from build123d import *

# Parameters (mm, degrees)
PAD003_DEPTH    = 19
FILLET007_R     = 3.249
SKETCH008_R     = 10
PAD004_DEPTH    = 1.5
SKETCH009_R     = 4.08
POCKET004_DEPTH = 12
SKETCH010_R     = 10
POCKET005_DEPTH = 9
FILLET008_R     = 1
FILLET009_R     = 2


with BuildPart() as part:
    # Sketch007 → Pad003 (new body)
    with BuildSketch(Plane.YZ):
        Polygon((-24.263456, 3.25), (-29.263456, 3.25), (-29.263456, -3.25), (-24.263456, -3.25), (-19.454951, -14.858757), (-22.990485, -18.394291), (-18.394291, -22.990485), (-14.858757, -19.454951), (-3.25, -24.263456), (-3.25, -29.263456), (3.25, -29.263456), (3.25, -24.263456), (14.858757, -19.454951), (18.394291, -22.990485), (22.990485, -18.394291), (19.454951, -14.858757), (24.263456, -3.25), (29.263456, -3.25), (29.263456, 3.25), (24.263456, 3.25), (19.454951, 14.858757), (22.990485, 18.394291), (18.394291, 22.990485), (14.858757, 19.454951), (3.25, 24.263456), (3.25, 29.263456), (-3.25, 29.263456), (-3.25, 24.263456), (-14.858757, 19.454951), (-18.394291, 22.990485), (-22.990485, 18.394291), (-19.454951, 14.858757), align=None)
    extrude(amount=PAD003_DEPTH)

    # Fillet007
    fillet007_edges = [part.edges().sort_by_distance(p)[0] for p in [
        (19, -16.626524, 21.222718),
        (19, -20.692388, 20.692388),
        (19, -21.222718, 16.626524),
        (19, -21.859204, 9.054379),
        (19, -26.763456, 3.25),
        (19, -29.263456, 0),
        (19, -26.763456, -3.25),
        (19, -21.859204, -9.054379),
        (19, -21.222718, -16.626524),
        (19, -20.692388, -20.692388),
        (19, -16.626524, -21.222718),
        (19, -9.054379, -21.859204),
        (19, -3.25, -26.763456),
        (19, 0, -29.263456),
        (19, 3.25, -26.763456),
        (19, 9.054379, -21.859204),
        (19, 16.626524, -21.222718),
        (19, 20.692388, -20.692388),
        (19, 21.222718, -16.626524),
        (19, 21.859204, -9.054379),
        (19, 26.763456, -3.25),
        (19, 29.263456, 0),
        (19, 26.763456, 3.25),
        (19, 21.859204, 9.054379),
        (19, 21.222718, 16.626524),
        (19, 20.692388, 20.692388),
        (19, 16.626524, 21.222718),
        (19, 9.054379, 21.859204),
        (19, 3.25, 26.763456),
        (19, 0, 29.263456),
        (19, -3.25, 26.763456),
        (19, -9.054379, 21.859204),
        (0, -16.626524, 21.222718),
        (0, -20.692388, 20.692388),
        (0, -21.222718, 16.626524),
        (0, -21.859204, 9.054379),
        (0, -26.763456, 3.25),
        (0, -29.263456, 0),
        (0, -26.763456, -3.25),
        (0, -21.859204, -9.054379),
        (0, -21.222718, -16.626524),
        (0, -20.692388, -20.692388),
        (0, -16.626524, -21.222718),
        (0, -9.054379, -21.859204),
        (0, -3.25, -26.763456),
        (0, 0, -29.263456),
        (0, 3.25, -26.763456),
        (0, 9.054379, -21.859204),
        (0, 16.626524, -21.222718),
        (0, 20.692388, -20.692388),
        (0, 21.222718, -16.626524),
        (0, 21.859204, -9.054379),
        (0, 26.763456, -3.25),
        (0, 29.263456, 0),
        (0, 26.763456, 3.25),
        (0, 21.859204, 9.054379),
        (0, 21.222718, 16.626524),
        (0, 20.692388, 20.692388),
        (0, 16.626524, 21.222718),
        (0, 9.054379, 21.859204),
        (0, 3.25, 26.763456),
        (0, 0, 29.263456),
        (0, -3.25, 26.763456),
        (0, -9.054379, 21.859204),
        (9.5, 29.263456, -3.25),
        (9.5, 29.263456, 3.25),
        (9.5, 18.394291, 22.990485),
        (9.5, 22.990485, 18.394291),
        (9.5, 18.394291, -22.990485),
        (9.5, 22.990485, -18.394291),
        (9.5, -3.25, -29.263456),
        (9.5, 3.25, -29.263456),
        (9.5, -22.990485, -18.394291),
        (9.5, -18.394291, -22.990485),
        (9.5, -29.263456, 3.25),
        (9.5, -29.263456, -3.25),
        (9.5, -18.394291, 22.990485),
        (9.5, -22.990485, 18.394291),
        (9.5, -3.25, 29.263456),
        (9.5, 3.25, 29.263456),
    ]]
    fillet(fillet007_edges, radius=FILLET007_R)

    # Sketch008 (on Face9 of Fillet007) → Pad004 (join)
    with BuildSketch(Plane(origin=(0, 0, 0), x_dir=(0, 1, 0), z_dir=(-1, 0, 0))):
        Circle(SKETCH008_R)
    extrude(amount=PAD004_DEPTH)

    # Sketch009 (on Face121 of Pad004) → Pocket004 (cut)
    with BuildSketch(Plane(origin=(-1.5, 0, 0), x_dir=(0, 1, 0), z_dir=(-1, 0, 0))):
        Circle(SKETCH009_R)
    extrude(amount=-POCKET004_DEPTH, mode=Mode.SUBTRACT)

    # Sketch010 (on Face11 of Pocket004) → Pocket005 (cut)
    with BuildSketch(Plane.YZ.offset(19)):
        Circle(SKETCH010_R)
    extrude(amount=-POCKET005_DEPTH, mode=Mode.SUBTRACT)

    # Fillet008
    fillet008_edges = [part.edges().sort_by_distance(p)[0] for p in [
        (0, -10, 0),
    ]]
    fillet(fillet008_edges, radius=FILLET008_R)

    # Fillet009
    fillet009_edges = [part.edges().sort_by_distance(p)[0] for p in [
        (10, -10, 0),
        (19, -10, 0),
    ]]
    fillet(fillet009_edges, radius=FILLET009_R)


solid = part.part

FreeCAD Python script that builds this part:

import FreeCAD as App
import Part
import Sketcher

V = App.Vector
Q = App.Units.Quantity


def edges_at(feature, points):
    """Names of the edges that pass closest to the given points."""
    edges = feature.Shape.Edges
    near = lambda p: min(range(len(edges)), key=lambda i: edges[i].distToShape(Part.Vertex(*p))[0])
    return sorted({f"Edge{near(p) + 1}" for p in points})

doc = App.newDocument("Part")
params = doc.addObject("Spreadsheet::Sheet", "Params")
for row, (alias, value) in enumerate([
    ("sketch1_width", "5 mm"),
    ("sketch1_length", "5 mm"),
    ("sketch1_width2", "6.5 mm"),
    ("sketch1_length2", "6.5 mm"),
    ("pad1_length", "19 mm"),
    ("fillet_radius", "3.249 mm"),
    ("sketch2_diameter", "20 mm"),
    ("pad2_length", "1.5 mm"),
    ("sketch3_diameter", "8.16 mm"),
    ("pocket1_length", "12 mm"),
    ("sketch4_diameter", "20 mm"),
    ("pocket2_length", "9 mm"),
    ("fillet2_radius", "1 mm"),
    ("fillet3_radius", "2 mm"),
], start=1):
    params.set(f"A{row}", alias)
    params.set(f"B{row}", "=" + value)
    params.setAlias(f"B{row}", alias)

body = doc.addObject("PartDesign::Body", "Body")

sketch1 = body.newObject("Sketcher::SketchObject", "Sketch")
sketch1.AttachmentSupport = (doc.getObject("YZ_Plane"), [""])
sketch1.MapMode = "FlatFace"
sketch1.addGeometry([
    Part.LineSegment(V(-24, 3, 0), V(-29, 3, 0)),
    Part.LineSegment(V(-29, 3, 0), V(-29, -3, 0)),
    Part.LineSegment(V(-29, -3, 0), V(-24, -3, 0)),
    Part.LineSegment(V(-24, -3, 0), V(-19, -15, 0)),
    Part.LineSegment(V(-19, -15, 0), V(-23, -18, 0)),
    Part.LineSegment(V(-23, -18, 0), V(-18, -23, 0)),
    Part.LineSegment(V(-18, -23, 0), V(-15, -19, 0)),
    Part.LineSegment(V(-15, -19, 0), V(-3, -24, 0)),
    Part.LineSegment(V(-3, -24, 0), V(-3, -29, 0)),
    Part.LineSegment(V(-3, -29, 0), V(3, -29, 0)),
    Part.LineSegment(V(3, -29, 0), V(3, -24, 0)),
    Part.LineSegment(V(3, -24, 0), V(15, -19, 0)),
    Part.LineSegment(V(15, -19, 0), V(18, -23, 0)),
    Part.LineSegment(V(18, -23, 0), V(23, -18, 0)),
    Part.LineSegment(V(23, -18, 0), V(19, -15, 0)),
    Part.LineSegment(V(19, -15, 0), V(24, -3, 0)),
    Part.LineSegment(V(24, -3, 0), V(29, -3, 0)),
    Part.LineSegment(V(29, -3, 0), V(29, 3, 0)),
    Part.LineSegment(V(29, 3, 0), V(24, 3, 0)),
    Part.LineSegment(V(24, 3, 0), V(19, 15, 0)),
    Part.LineSegment(V(19, 15, 0), V(23, 18, 0)),
    Part.LineSegment(V(23, 18, 0), V(18, 23, 0)),
    Part.LineSegment(V(18, 23, 0), V(15, 19, 0)),
    Part.LineSegment(V(15, 19, 0), V(3, 24, 0)),
    Part.LineSegment(V(3, 24, 0), V(3, 29, 0)),
    Part.LineSegment(V(3, 29, 0), V(-3, 29, 0)),
    Part.LineSegment(V(-3, 29, 0), V(-3, 24, 0)),
    Part.LineSegment(V(-3, 24, 0), V(-15, 19, 0)),
    Part.LineSegment(V(-15, 19, 0), V(-18, 23, 0)),
    Part.LineSegment(V(-18, 23, 0), V(-23, 18, 0)),
    Part.LineSegment(V(-23, 18, 0), V(-19, 15, 0)),
    Part.LineSegment(V(-19, 15, 0), V(-24, 3, 0)),
], False)
sketch1.addConstraint([
    Sketcher.Constraint("Coincident", 0, 2, 1, 1),
    Sketcher.Constraint("Coincident", 1, 2, 2, 1),
    Sketcher.Constraint("Coincident", 2, 2, 3, 1),
    Sketcher.Constraint("Coincident", 3, 2, 4, 1),
    Sketcher.Constraint("Coincident", 4, 2, 5, 1),
    Sketcher.Constraint("Coincident", 5, 2, 6, 1),
    Sketcher.Constraint("Coincident", 6, 2, 7, 1),
    Sketcher.Constraint("Coincident", 7, 2, 8, 1),
    Sketcher.Constraint("Coincident", 8, 2, 9, 1),
    Sketcher.Constraint("Coincident", 9, 2, 10, 1),
    Sketcher.Constraint("Coincident", 10, 2, 11, 1),
    Sketcher.Constraint("Coincident", 11, 2, 12, 1),
    Sketcher.Constraint("Coincident", 12, 2, 13, 1),
    Sketcher.Constraint("Coincident", 13, 2, 14, 1),
    Sketcher.Constraint("Coincident", 14, 2, 15, 1),
    Sketcher.Constraint("Coincident", 15, 2, 16, 1),
    Sketcher.Constraint("Coincident", 16, 2, 17, 1),
    Sketcher.Constraint("Coincident", 17, 2, 18, 1),
    Sketcher.Constraint("Coincident", 18, 2, 19, 1),
    Sketcher.Constraint("Coincident", 19, 2, 20, 1),
    Sketcher.Constraint("Coincident", 20, 2, 21, 1),
    Sketcher.Constraint("Coincident", 21, 2, 22, 1),
    Sketcher.Constraint("Coincident", 22, 2, 23, 1),
    Sketcher.Constraint("Coincident", 23, 2, 24, 1),
    Sketcher.Constraint("Coincident", 24, 2, 25, 1),
    Sketcher.Constraint("Coincident", 25, 2, 26, 1),
    Sketcher.Constraint("Coincident", 26, 2, 27, 1),
    Sketcher.Constraint("Coincident", 27, 2, 28, 1),
    Sketcher.Constraint("Coincident", 28, 2, 29, 1),
    Sketcher.Constraint("Coincident", 29, 2, 30, 1),
    Sketcher.Constraint("Coincident", 30, 2, 31, 1),
    Sketcher.Constraint("Coincident", 31, 2, 0, 1),
    Sketcher.Constraint("Horizontal", 0),
    Sketcher.Constraint("Vertical", 1),
    Sketcher.Constraint("Horizontal", 2),
    Sketcher.Constraint("Vertical", 8),
    Sketcher.Constraint("Horizontal", 9),
    Sketcher.Constraint("Vertical", 10),
    Sketcher.Constraint("Horizontal", 16),
    Sketcher.Constraint("Vertical", 17),
    Sketcher.Constraint("Horizontal", 18),
    Sketcher.Constraint("Vertical", 24),
    Sketcher.Constraint("Horizontal", 25),
    Sketcher.Constraint("Vertical", 26),
    Sketcher.Constraint("Symmetric", 0, 2, 16, 2, -1, 1),
    Sketcher.Constraint("Symmetric", 2, 2, 18, 2, -1, 1),
    Sketcher.Constraint("Symmetric", 3, 2, 19, 2, -1, 1),
    Sketcher.Constraint("Symmetric", 4, 2, 20, 2, -1, 1),
    Sketcher.Constraint("Symmetric", 5, 2, 21, 2, -1, 1),
    Sketcher.Constraint("Symmetric", 6, 2, 22, 2, -1, 1),
    Sketcher.Constraint("Symmetric", 7, 2, 23, 2, -1, 1),
    Sketcher.Constraint("Symmetric", 9, 2, 25, 2, -1, 1),
    Sketcher.Constraint("Symmetric", 11, 2, 27, 2, -1, 1),
    Sketcher.Constraint("Symmetric", 12, 2, 28, 2, -1, 1),
    Sketcher.Constraint("Symmetric", 13, 2, 29, 2, -1, 1),
    Sketcher.Constraint("Symmetric", 14, 2, 30, 2, -1, 1),
    Sketcher.Constraint("Symmetric", 7, 2, 10, 2, -2),
    Sketcher.Constraint("Symmetric", 6, 2, 11, 2, -2),
    Sketcher.Constraint("Symmetric", 5, 2, 12, 2, -2),
    Sketcher.Constraint("Symmetric", 4, 2, 13, 2, -2),
    Sketcher.Constraint("Symmetric", 3, 2, 14, 2, -2),
    Sketcher.Constraint("Symmetric", 2, 2, 15, 2, -2),
    Sketcher.Constraint("Perpendicular", 4, 5),
    Sketcher.Constraint("Perpendicular", 5, 6),
    Sketcher.Constraint("Perpendicular", 3, 11),
    Sketcher.Constraint("Perpendicular", 6, 12),
    Sketcher.Constraint("Perpendicular", 19, 27),
    Sketcher.Constraint("Perpendicular", 23, 31),
    Sketcher.Constraint("Equal", 25, 1),
    Sketcher.Constraint("Equal", 18, 8),
    Sketcher.Constraint("Equal", 4, 6),
    Sketcher.Constraint("Equal", 3, 7),
    Sketcher.Constraint("DistanceX", 0, 2, 0, 1, Q("5 mm")),
    Sketcher.Constraint("Distance", 4, Q("5 mm")),
    Sketcher.Constraint("DistanceX", 9, 1, 9, 2, Q("6.5 mm")),
    Sketcher.Constraint("Angle", 3, Q("-67.499998 deg")),
    Sketcher.Constraint("Distance", 5, Q("6.5 mm")),
    Sketcher.Constraint("DistanceX", 2, 2, 6, 2, Q("9.404699 mm")),
])
sketch1.setExpression("Constraints[72]", "Params.sketch1_width")
sketch1.setExpression("Constraints[73]", "Params.sketch1_length")
sketch1.setExpression("Constraints[74]", "Params.sketch1_width2")
sketch1.setExpression("Constraints[76]", "Params.sketch1_length2")
pad1 = body.newObject("PartDesign::Pad", "Pad")
pad1.Profile = sketch1
pad1.setExpression("Length", "Params.pad1_length")
doc.recompute()

fillet = body.newObject("PartDesign::Fillet", "Fillet")
fillet.Base = (pad1, edges_at(pad1, [
    (19, -16.627, 21.223),
    (19, -20.692, 20.692),
    (19, -21.223, 16.627),
    (19, -21.859, 9.054),
    (19, -26.763, 3.25),
    (19, -29.263, 0),
    (19, -26.763, -3.25),
    (19, -21.859, -9.054),
    (19, -21.223, -16.627),
    (19, -20.692, -20.692),
    (19, -16.627, -21.223),
    (19, -9.054, -21.859),
    (19, -3.25, -26.763),
    (19, 0, -29.263),
    (19, 3.25, -26.763),
    (19, 9.054, -21.859),
    (19, 16.627, -21.223),
    (19, 20.692, -20.692),
    (19, 21.223, -16.627),
    (19, 21.859, -9.054),
    (19, 26.763, -3.25),
    (19, 29.263, 0),
    (19, 26.763, 3.25),
    (19, 21.859, 9.054),
    (19, 21.223, 16.627),
    (19, 20.692, 20.692),
    (19, 16.627, 21.223),
    (19, 9.054, 21.859),
    (19, 3.25, 26.763),
    (19, 0, 29.263),
    (19, -3.25, 26.763),
    (19, -9.054, 21.859),
    (0, -16.627, 21.223),
    (0, -20.692, 20.692),
    (0, -21.223, 16.627),
    (0, -21.859, 9.054),
    (0, -26.763, 3.25),
    (0, -29.263, 0),
    (0, -26.763, -3.25),
    (0, -21.859, -9.054),
    (0, -21.223, -16.627),
    (0, -20.692, -20.692),
    (0, -16.627, -21.223),
    (0, -9.054, -21.859),
    (0, -3.25, -26.763),
    (0, 0, -29.263),
    (0, 3.25, -26.763),
    (0, 9.054, -21.859),
    (0, 16.627, -21.223),
    (0, 20.692, -20.692),
    (0, 21.223, -16.627),
    (0, 21.859, -9.054),
    (0, 26.763, -3.25),
    (0, 29.263, 0),
    (0, 26.763, 3.25),
    (0, 21.859, 9.054),
    (0, 21.223, 16.627),
    (0, 20.692, 20.692),
    (0, 16.627, 21.223),
    (0, 9.054, 21.859),
    (0, 3.25, 26.763),
    (0, 0, 29.263),
    (0, -3.25, 26.763),
    (0, -9.054, 21.859),
    (9.5, 29.263, -3.25),
    (9.5, 29.263, 3.25),
    (9.5, 18.394, 22.99),
    (9.5, 22.99, 18.394),
    (9.5, 18.394, -22.99),
    (9.5, 22.99, -18.394),
    (9.5, -3.25, -29.263),
    (9.5, 3.25, -29.263),
    (9.5, -22.99, -18.394),
    (9.5, -18.394, -22.99),
    (9.5, -29.263, 3.25),
    (9.5, -29.263, -3.25),
    (9.5, -18.394, 22.99),
    (9.5, -22.99, 18.394),
    (9.5, -3.25, 29.263),
    (9.5, 3.25, 29.263),
]))
fillet.setExpression("Radius", "Params.fillet_radius")

sketch2 = body.newObject("Sketcher::SketchObject", "Sketch001")
sketch2.AttachmentSupport = (doc.getObject("YZ_Plane"), [""])
sketch2.MapMode = "FlatFace"
sketch2.addGeometry(Part.Circle(V(0, 0, 0), V(0, 0, 1), 10), False)
sketch2.addConstraint([
    Sketcher.Constraint("Coincident", 0, 3, -1, 1),
    Sketcher.Constraint("Diameter", 0, Q("20 mm")),
])
sketch2.setExpression("Constraints[1]", "Params.sketch2_diameter")
pad2 = body.newObject("PartDesign::Pad", "Pad001")
pad2.Profile = sketch2
pad2.setExpression("Length", "Params.pad2_length")
pad2.Reversed = True

sketch3 = body.newObject("Sketcher::SketchObject", "Sketch002")
sketch3.AttachmentSupport = (doc.getObject("YZ_Plane"), [""])
sketch3.MapMode = "FlatFace"
sketch3.AttachmentOffset = App.Placement(V(0, 0, -1.5), App.Rotation())
sketch3.addGeometry(Part.Circle(V(0, 0, 0), V(0, 0, 1), 4.1), False)
sketch3.addConstraint([
    Sketcher.Constraint("Coincident", 0, 3, -1, 1),
    Sketcher.Constraint("Diameter", 0, Q("8.16 mm")),
])
sketch3.setExpression("Constraints[1]", "Params.sketch3_diameter")
pocket1 = body.newObject("PartDesign::Pocket", "Pocket")
pocket1.Profile = sketch3
pocket1.setExpression("Length", "Params.pocket1_length")
pocket1.Reversed = True

sketch4 = body.newObject("Sketcher::SketchObject", "Sketch003")
sketch4.AttachmentSupport = (doc.getObject("YZ_Plane"), [""])
sketch4.MapMode = "FlatFace"
sketch4.AttachmentOffset = App.Placement(V(0, 0, 19), App.Rotation())
sketch4.addGeometry(Part.Circle(V(0, 0, 0), V(0, 0, 1), 10), False)
sketch4.addConstraint([
    Sketcher.Constraint("Coincident", 0, 3, -1, 1),
    Sketcher.Constraint("Diameter", 0, Q("20 mm")),
])
sketch4.setExpression("Constraints[1]", "Params.sketch4_diameter")
pocket2 = body.newObject("PartDesign::Pocket", "Pocket001")
pocket2.Profile = sketch4
pocket2.setExpression("Length", "Params.pocket2_length")
doc.recompute()

fillet2 = body.newObject("PartDesign::Fillet", "Fillet001")
fillet2.Base = (pocket2, edges_at(pocket2, [(0, -10, 0)]))
fillet2.setExpression("Radius", "Params.fillet2_radius")
doc.recompute()

fillet3 = body.newObject("PartDesign::Fillet", "Fillet002")
fillet3.Base = (fillet2, edges_at(fillet2, [(10, -10, 0), (19, -10, 0)]))
fillet3.setExpression("Radius", "Params.fillet3_radius")

doc.recompute()
